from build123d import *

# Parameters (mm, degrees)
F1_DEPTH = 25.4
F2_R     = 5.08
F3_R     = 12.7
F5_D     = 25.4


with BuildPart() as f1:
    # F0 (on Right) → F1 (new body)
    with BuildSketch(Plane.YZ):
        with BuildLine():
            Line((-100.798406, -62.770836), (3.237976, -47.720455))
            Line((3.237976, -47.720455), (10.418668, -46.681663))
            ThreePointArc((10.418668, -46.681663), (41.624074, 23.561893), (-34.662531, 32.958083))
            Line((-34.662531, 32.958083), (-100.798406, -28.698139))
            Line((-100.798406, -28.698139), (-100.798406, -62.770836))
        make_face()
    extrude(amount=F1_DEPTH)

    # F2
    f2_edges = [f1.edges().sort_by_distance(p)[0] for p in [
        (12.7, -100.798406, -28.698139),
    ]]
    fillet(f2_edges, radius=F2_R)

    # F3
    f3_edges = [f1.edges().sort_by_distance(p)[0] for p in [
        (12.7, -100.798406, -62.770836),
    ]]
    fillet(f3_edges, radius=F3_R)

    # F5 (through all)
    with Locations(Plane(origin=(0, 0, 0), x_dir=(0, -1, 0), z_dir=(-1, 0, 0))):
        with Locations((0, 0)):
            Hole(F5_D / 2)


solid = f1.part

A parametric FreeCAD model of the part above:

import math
import FreeCAD as App
import Part
import Sketcher
from FreeCAD import Vector
Q = App.Units.Quantity


def edges_at(feature, points):
    """Names of the edges that pass closest to the given points."""
    edges = feature.Shape.Edges
    near = lambda p: min(range(len(edges)), key=lambda i: edges[i].distToShape(Part.Vertex(*p))[0])
    return sorted({f"Edge{near(p) + 1}" for p in points})

doc = App.newDocument("Part")
body = doc.addObject("PartDesign::Body", "Body")

# Sketch on YZ plane
sketch1 = body.newObject("Sketcher::SketchObject", "Sketch")
sketch1.AttachmentSupport = (doc.getObject("YZ_Plane"), [""])
sketch1.MapMode = "FlatFace"
sketch1.addGeometry(Part.LineSegment(Vector(-101, -63, 0), Vector(3, -48, 0)), False)
sketch1.addGeometry(Part.LineSegment(Vector(3, -48, 0), Vector(10, -47, 0)), False)
sketch1.addGeometry(Part.ArcOfCircle(Part.Circle(Vector(0, 0, 0), Vector(0, 0, 1), 48), math.radians(-77), math.radians(136)), False)
sketch1.addGeometry(Part.LineSegment(Vector(-35, 33, 0), Vector(-101, -29, 0)), False)
sketch1.addGeometry(Part.LineSegment(Vector(-101, -29, 0), Vector(-101, -63, 0)), False)
sketch1.addConstraint(Sketcher.Constraint("Coincident", 0, 2, 1, 1))
sketch1.addConstraint(Sketcher.Constraint("Coincident", 1, 2, 2, 1))
sketch1.addConstraint(Sketcher.Constraint("Coincident", 2, 2, 3, 1))
sketch1.addConstraint(Sketcher.Constraint("Coincident", 3, 2, 4, 1))
sketch1.addConstraint(Sketcher.Constraint("Coincident", 4, 2, 0, 1))
sketch1.addConstraint(Sketcher.Constraint("Vertical", 4))
sketch1.addConstraint(Sketcher.Constraint("Coincident", 2, 3, -1, 1))
sketch1.addConstraint(Sketcher.Constraint("Parallel", 0, 1))
sketch1.addConstraint(Sketcher.Constraint("Radius", 2, Q("47.830182 mm")))
sketch1.addConstraint(Sketcher.Constraint("DistanceX", 2, 2, 1, 2, Q("45.081199 mm")))
sketch1.addConstraint(Sketcher.Constraint("Distance", 1, Q("7.255441 mm")))
sketch1.addConstraint(Sketcher.Constraint("Distance", 3, Q("90.41816 mm")))
sketch1.addConstraint(Sketcher.Constraint("DistanceY", 4, 2, 4, 1, Q("34.072697 mm")))
sketch1.addConstraint(Sketcher.Constraint("DistanceX", 2, 2, -1, 1, Q("34.662531 mm")))
sketch1.addConstraint(Sketcher.Constraint("DistanceY", 3, 2, -1, 1, Q("28.698139 mm")))
pad1 = body.newObject("PartDesign::Pad", "Pad")
pad1.Profile = sketch1
pad1.Length = Q("1 in")
doc.recompute()

fillet = body.newObject("PartDesign::Fillet", "Fillet")
fillet.Base = (pad1, edges_at(pad1, [(12.7, -100.798, -28.698)]))
fillet.Radius = Q("0.2 in")
doc.recompute()

fillet2 = body.newObject("PartDesign::Fillet", "Fillet001")
fillet2.Base = (fillet, edges_at(fillet, [(12.7, -100.798, -62.771)]))
fillet2.Radius = Q("0.5 in")

# Sketch on YZ plane
sketch2 = body.newObject("Sketcher::SketchObject", "Sketch001")
sketch2.AttachmentSupport = (doc.getObject("YZ_Plane"), [""])
sketch2.MapMode = "FlatFace"
sketch2.addGeometry(Part.Circle(Vector(0, 0, 0), Vector(0, 0, 1), 13), False)
sketch2.addConstraint(Sketcher.Constraint("Coincident", 0, 3, -1, 1))
sketch2.addConstraint(Sketcher.Constraint("Diameter", 0, Q("1 in")))
doc.recompute()
hole = body.newObject("PartDesign::Hole", "Hole")
hole.Profile = sketch2
hole.ThreadType = "None"
hole.Diameter = Q("1 in")
hole.DepthType = "ThroughAll"
hole.Reversed = True

doc.recompute()
